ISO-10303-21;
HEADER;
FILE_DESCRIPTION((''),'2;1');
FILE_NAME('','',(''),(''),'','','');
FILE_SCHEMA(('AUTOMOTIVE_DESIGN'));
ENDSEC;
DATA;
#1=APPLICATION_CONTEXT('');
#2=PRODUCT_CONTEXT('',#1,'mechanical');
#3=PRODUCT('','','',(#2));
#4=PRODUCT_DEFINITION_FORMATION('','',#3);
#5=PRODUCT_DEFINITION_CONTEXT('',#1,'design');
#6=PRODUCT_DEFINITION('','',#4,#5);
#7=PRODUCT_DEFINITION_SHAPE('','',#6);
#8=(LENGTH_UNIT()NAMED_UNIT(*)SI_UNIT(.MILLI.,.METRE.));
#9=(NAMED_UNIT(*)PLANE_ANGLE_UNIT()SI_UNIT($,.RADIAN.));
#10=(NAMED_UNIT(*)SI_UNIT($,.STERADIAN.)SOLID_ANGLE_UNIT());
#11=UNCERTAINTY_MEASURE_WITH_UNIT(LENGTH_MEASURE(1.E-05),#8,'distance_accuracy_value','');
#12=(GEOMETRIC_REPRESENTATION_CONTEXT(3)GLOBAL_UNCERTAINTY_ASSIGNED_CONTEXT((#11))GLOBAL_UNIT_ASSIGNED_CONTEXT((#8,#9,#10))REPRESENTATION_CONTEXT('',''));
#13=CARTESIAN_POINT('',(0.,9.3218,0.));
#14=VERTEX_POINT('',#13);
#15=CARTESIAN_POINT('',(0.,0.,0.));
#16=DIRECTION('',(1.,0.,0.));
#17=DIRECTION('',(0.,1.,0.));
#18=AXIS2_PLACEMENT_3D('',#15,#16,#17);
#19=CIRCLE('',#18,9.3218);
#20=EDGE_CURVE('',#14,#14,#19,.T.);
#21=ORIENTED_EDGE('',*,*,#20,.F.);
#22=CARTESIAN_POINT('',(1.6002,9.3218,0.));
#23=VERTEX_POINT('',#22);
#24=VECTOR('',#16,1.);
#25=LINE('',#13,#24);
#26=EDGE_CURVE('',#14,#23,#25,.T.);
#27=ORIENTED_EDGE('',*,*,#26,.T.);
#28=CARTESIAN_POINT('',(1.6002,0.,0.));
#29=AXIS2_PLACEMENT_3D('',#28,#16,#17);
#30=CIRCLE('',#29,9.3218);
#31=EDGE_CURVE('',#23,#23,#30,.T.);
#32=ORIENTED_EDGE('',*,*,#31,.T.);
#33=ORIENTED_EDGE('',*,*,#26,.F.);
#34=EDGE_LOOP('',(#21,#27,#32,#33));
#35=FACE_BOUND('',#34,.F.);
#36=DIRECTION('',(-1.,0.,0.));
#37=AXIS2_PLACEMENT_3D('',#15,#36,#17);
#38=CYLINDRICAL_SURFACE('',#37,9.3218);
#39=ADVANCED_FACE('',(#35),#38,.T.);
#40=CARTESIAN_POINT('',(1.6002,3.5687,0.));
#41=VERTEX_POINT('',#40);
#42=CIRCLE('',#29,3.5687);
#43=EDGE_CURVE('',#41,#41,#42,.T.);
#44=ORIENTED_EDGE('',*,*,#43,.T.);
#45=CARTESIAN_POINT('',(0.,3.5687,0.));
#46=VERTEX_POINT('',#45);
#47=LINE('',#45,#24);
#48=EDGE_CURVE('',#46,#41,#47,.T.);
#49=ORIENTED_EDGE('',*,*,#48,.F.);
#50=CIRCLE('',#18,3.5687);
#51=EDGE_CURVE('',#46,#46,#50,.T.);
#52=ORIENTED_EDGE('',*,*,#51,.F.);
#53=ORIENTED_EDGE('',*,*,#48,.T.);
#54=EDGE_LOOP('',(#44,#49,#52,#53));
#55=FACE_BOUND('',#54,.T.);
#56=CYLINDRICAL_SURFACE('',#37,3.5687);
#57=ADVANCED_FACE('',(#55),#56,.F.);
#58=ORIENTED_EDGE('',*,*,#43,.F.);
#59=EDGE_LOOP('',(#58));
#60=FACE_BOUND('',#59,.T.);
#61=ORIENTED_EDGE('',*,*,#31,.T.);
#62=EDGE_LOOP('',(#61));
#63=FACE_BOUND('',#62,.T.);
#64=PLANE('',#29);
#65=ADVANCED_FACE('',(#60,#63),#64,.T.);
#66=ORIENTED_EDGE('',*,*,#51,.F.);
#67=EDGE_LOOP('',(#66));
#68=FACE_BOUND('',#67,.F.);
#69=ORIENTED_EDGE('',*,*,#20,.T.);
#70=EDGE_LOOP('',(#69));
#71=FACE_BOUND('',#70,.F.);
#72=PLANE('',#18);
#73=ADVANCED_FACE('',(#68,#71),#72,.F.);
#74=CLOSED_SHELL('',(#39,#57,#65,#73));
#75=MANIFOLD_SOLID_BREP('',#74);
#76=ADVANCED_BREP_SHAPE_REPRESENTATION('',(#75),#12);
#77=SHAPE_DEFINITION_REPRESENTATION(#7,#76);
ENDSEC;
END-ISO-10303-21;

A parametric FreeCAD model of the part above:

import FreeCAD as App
import Part
import Sketcher
Q = App.Units.Quantity

doc = App.newDocument("Part")
body = doc.addObject("PartDesign::Body", "Body")

# Sketch on YZ plane
sketch1 = body.newObject("Sketcher::SketchObject", "Sketch")
sketch1.AttachmentSupport = (doc.getObject("YZ_Plane"), [""])
sketch1.MapMode = "FlatFace"
sketch1.addGeometry([
    Part.Circle(App.Vector(0, 0, 0), App.Vector(0, 0, 1), 9.3),
    Part.Circle(App.Vector(0, 0, 0), App.Vector(0, 0, 1), 3.6),
], False)
sketch1.addConstraint([
    Sketcher.Constraint("Coincident", 0, 3, -1, 1),
    Sketcher.Constraint("Coincident", 1, 3, -1, 1),
    Sketcher.Constraint("Diameter", 0, Q("0.734 in")),
    Sketcher.Constraint("Diameter", 1, Q("0.281 in")),
])
pad1 = body.newObject("PartDesign::Pad", "Pad")
pad1.Profile = sketch1
pad1.Length = Q("0.063 in")

doc.recompute()
